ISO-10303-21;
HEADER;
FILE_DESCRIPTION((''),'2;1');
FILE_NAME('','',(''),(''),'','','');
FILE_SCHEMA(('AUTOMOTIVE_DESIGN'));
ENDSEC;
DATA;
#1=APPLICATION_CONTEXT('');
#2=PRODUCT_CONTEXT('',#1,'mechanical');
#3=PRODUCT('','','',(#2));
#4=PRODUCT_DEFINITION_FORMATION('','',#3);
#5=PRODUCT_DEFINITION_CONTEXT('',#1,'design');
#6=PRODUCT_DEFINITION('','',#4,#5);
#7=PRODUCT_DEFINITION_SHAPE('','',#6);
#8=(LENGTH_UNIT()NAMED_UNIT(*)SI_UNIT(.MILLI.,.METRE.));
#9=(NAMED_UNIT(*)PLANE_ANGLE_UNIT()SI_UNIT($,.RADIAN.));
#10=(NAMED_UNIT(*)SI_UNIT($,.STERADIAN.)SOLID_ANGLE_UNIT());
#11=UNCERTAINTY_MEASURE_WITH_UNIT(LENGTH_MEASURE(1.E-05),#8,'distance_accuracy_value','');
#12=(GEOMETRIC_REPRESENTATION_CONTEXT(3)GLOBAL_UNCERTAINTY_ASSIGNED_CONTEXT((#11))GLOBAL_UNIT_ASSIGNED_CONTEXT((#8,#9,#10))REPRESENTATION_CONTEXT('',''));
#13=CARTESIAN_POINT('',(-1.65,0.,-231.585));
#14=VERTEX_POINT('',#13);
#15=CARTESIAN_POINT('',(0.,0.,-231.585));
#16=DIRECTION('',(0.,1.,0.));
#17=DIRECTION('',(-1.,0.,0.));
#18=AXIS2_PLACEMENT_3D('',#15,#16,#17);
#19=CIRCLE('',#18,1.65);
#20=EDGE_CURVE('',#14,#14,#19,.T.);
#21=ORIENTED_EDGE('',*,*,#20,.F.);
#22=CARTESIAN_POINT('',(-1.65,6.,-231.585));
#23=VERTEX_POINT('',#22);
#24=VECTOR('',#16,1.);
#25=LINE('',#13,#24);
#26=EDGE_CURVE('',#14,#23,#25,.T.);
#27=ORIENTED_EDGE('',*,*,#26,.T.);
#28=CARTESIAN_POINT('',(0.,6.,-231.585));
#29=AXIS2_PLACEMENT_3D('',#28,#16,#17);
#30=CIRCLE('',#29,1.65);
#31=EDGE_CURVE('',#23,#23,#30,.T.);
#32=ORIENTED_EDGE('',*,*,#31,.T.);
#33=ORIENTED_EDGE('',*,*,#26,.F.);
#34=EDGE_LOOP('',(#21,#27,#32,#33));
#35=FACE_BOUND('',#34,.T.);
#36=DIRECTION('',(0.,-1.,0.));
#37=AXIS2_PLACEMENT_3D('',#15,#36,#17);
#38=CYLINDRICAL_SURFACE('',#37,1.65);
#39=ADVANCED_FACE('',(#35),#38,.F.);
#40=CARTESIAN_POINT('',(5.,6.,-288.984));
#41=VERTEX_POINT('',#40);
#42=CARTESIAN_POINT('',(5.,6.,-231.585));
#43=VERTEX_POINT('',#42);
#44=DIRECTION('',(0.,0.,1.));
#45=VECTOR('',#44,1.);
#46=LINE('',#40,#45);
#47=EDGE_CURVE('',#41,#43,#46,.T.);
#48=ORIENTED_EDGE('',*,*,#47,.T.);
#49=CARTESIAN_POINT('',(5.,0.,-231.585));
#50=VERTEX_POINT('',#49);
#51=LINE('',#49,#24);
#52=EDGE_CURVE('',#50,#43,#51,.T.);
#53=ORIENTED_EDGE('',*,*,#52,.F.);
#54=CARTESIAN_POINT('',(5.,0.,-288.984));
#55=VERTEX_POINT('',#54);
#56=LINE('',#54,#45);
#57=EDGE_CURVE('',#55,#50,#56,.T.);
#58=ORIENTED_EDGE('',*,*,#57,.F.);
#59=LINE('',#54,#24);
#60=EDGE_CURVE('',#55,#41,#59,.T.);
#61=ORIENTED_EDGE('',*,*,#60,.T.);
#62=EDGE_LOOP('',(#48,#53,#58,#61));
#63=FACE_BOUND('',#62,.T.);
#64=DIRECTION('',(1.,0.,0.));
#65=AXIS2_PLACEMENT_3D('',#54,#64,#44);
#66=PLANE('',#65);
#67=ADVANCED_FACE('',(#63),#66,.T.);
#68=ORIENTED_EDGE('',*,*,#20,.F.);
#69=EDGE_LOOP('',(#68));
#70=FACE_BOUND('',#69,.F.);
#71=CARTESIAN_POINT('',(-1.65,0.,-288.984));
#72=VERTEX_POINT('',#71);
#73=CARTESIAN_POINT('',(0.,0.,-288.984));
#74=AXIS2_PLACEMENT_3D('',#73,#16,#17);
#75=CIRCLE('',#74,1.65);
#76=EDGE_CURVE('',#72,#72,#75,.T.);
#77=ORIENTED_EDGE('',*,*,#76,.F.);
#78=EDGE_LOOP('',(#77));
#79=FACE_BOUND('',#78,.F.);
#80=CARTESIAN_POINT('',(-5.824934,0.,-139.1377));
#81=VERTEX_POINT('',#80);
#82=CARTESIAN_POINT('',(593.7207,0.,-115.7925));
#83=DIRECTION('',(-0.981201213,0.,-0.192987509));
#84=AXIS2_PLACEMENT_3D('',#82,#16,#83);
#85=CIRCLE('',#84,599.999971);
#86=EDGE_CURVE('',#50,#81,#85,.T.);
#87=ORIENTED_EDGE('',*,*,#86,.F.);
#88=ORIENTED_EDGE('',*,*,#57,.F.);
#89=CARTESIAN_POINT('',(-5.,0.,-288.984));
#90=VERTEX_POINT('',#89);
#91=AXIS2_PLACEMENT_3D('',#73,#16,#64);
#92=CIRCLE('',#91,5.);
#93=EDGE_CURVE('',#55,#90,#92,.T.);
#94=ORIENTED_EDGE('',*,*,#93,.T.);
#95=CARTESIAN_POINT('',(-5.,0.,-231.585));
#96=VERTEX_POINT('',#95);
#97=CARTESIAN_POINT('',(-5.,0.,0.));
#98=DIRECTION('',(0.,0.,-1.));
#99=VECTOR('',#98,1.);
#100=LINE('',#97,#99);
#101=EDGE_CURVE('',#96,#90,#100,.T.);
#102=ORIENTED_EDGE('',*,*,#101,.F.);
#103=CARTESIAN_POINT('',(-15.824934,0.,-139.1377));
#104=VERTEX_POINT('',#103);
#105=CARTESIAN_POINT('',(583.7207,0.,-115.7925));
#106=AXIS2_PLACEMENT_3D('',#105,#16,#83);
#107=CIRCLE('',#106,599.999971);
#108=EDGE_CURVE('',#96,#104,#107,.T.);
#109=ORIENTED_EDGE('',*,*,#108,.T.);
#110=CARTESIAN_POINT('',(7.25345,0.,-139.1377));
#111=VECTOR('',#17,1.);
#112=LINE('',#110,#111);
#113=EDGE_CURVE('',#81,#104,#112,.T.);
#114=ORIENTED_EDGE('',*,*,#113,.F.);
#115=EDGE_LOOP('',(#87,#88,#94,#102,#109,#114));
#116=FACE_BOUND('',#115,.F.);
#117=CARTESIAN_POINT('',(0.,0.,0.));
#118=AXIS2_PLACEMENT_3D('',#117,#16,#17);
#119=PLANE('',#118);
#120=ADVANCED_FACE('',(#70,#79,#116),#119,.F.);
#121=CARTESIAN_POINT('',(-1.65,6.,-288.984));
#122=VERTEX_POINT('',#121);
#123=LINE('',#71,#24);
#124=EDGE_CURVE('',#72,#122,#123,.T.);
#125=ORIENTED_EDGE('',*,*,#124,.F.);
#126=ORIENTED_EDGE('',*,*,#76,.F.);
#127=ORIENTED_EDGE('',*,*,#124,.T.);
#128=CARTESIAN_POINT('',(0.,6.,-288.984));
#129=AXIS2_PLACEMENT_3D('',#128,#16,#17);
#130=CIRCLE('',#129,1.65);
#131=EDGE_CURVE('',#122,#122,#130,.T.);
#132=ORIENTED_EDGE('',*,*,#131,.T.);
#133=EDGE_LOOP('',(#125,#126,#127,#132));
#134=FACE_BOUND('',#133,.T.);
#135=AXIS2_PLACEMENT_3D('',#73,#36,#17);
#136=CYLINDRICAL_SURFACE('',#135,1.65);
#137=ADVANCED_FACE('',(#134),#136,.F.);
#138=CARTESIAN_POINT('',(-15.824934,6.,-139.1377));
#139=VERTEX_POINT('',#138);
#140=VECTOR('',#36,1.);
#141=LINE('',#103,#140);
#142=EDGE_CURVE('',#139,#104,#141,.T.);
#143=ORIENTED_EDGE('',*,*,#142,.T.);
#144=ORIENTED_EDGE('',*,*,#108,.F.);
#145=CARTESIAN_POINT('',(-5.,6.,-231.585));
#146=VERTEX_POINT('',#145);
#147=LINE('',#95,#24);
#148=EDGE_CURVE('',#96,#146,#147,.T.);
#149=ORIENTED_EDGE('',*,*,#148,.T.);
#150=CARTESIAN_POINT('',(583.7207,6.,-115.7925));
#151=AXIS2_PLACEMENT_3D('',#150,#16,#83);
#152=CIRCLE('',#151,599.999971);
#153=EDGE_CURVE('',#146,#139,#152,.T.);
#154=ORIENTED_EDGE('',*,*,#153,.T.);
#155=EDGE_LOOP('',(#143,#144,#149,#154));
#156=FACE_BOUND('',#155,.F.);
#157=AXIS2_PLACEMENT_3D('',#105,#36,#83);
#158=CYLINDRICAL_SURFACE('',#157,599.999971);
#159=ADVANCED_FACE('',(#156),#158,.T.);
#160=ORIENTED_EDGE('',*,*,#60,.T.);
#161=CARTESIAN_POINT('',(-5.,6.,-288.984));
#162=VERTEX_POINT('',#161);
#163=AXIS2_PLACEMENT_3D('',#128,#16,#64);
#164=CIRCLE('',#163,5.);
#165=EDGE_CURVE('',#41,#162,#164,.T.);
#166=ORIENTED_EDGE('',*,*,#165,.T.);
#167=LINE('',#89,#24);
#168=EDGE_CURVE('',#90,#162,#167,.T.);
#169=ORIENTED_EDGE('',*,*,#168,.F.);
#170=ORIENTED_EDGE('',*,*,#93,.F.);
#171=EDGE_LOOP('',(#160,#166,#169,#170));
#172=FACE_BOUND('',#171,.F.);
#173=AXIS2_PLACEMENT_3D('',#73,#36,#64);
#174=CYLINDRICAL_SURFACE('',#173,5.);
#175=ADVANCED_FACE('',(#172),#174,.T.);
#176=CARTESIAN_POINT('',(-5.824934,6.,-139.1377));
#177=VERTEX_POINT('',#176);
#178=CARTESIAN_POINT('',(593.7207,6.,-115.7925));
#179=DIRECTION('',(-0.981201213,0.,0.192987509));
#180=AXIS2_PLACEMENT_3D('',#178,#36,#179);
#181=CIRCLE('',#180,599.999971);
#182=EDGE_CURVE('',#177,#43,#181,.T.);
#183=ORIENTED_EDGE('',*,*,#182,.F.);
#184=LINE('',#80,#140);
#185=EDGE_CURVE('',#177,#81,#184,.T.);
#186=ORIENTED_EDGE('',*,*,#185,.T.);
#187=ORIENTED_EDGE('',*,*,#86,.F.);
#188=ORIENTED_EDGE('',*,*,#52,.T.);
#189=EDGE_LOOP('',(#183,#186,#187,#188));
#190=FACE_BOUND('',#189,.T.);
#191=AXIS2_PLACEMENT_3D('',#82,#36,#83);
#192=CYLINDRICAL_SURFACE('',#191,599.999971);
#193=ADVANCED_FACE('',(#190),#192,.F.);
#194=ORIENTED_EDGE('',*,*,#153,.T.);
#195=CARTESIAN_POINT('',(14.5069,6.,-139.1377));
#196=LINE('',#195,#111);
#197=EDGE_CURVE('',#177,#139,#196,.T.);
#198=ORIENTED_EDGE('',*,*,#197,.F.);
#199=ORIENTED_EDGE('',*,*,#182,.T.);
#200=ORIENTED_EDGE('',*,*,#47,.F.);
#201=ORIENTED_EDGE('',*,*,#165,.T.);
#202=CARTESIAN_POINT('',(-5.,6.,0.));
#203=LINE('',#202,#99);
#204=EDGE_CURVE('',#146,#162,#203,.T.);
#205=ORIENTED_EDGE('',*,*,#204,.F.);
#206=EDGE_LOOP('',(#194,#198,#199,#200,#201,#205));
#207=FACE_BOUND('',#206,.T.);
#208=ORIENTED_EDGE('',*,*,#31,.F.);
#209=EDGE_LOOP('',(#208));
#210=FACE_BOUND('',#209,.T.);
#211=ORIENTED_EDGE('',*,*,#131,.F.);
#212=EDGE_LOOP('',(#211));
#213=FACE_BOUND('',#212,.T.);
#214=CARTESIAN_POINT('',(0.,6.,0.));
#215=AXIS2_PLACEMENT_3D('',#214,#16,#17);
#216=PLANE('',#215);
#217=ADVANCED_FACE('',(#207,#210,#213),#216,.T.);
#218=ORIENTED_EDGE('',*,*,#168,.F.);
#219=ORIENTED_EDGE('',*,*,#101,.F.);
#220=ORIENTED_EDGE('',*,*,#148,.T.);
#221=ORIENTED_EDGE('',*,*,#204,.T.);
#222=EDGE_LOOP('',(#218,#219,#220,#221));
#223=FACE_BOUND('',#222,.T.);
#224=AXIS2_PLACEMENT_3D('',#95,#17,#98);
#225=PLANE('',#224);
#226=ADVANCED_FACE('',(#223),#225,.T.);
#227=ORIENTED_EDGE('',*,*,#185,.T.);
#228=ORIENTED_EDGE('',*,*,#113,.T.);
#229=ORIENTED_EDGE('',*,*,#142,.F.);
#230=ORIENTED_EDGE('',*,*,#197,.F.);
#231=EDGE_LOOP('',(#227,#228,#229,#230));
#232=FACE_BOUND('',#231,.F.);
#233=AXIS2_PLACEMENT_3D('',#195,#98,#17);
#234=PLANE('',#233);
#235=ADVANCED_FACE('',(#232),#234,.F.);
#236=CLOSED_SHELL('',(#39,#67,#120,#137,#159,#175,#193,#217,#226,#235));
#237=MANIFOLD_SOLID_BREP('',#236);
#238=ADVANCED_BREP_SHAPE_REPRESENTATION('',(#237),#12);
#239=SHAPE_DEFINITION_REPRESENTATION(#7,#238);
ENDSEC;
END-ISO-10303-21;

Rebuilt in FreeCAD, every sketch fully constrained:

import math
import FreeCAD as App
import Part
import Sketcher
from FreeCAD import Vector
Q = App.Units.Quantity


def add_polygon(sketch, points):
    """Adds a closed chain of lines whose ends are joined by coincident constraints."""
    first, n = sketch.GeometryCount, len(points)
    for a, b in zip(points, points[1:] + points[:1]):
        sketch.addGeometry(Part.LineSegment(App.Vector(*a, 0), App.Vector(*b, 0)), False)
    for i in range(n):
        sketch.addConstraint(Sketcher.Constraint("Coincident", first + i, 2, first + (i + 1) % n, 1))

doc = App.newDocument("Part")
body = doc.addObject("PartDesign::Body", "Body")

# Sketch on XZ plane
sketch1 = doc.addObject("Sketcher::SketchObject", "Sketch")
body.addObject(sketch1)
sketch1.AttachmentSupport = (doc.XZ_Plane, [""])
sketch1.MapMode = "FlatFace"
sketch1.addGeometry([
    Part.LineSegment(Vector(-5, -289, 0), Vector(-5, -231.6, 0)),  # 0
    Part.ArcOfCircle(Part.Circle(Vector(583.7, -115.8, 0), Vector(0, 0, 1), 600), math.radians(169), math.radians(191)),  # 1
    Part.ArcOfCircle(Part.Circle(Vector(0, 0, 0), Vector(0, 0, 1), 5), math.radians(0), math.radians(180)),  # 2
    Part.ArcOfCircle(Part.Circle(Vector(593.7, -115.8, 0), Vector(0, 0, 1), 600), math.radians(169), math.radians(191)),  # 3
    Part.LineSegment(Vector(5, -231.6, 0), Vector(5, -289, 0)),  # 4
    Part.ArcOfCircle(Part.Circle(Vector(0, -289, 0), Vector(0, 0, 1), 5), math.radians(180), math.radians(360)),  # 5
    Part.Circle(Vector(0, -289, 0), Vector(0, 0, 1), 1.6),  # 6
    Part.Circle(Vector(0, -231.6, 0), Vector(0, 0, 1), 1.6),  # 7
    Part.Circle(Vector(0, 0, 0), Vector(0, 0, 1), 1.6),  # 8
], False)
sketch1.addConstraint([
    Sketcher.Constraint("Coincident", 0, 2, 1, 2),
    Sketcher.Constraint("Coincident", 1, 1, 2, 2),
    Sketcher.Constraint("Coincident", 2, 1, 3, 1),
    Sketcher.Constraint("Coincident", 3, 2, 4, 1),
    Sketcher.Constraint("Tangent", 4, 2, 5, 2),
    Sketcher.Constraint("Tangent", 5, 1, 0, 1),
    Sketcher.Constraint("Vertical", 0),
    Sketcher.Constraint("Vertical", 4),
    Sketcher.Constraint("Coincident", 2, 3, -1, 1),
    Sketcher.Constraint("Coincident", 8, 3, -1, 1),
    Sketcher.Constraint("Coincident", 6, 3, 5, 3),
    Sketcher.Constraint("Equal", 1, 3),
    Sketcher.Constraint("Equal", 2, 5),
    Sketcher.Constraint("Equal", 6, 7),
    Sketcher.Constraint("Equal", 7, 8),
    Sketcher.Constraint("Symmetric", 0, 2, 3, 2, -2),
    Sketcher.Constraint("PointOnObject", 7, 3, -2),
    Sketcher.Constraint("PointOnObject", 1, 1, -1),
    Sketcher.Constraint("PointOnObject", 2, 1, -1),
    Sketcher.Constraint("Horizontal", 7, 3, 0, 2),
    Sketcher.Constraint("Radius", 1, Q("600 mm")),
    Sketcher.Constraint("Radius", 2, Q("5 mm")),
    Sketcher.Constraint("Diameter", 6, Q("3.3 mm")),
    Sketcher.Constraint("DistanceY", 5, 3, -1, 1, Q("288.984 mm")),
    Sketcher.Constraint("DistanceY", 7, 3, -1, 1, Q("231.585 mm")),
])
pad1 = doc.addObject("PartDesign::Pad", "Pad")
body.addObject(pad1)
pad1.Profile = sketch1
pad1.Length = 6
pad1.Reversed = True

# Sketch on XZ plane
sketch2 = doc.addObject("Sketcher::SketchObject", "Sketch001")
body.addObject(sketch2)
sketch2.AttachmentSupport = (doc.XZ_Plane, [""])
sketch2.MapMode = "FlatFace"
sketch2.AttachmentOffset = App.Placement(Vector(0, 0, -6), App.Rotation())
add_polygon(sketch2, [(55, -321), (-101, -321), (-101, 14), (55, 14)])  # lines 0-3
add_polygon(sketch2, [(-28, -139), (-28, -299), (15, -299), (15, -139)])  # lines 4-7
sketch2.addConstraint([
    Sketcher.Constraint("Horizontal", 0),
    Sketcher.Constraint("Vertical", 1),
    Sketcher.Constraint("Horizontal", 2),
    Sketcher.Constraint("Vertical", 3),
    Sketcher.Constraint("Vertical", 4),
    Sketcher.Constraint("Horizontal", 5),
    Sketcher.Constraint("Vertical", 6),
    Sketcher.Constraint("Horizontal", 7),
    Sketcher.Constraint("DistanceX", 0, 2, 0, 1, Q("155.5394 mm")),
    Sketcher.Constraint("DistanceX", 5, 1, 5, 2, Q("42.2178 mm")),
    Sketcher.Constraint("DistanceY", 1, 1, 1, 2, Q("335.2032 mm")),
    Sketcher.Constraint("DistanceY", 4, 2, 4, 1, Q("160.3008 mm")),
    Sketcher.Constraint("DistanceX", 4, 2, -1, 1, Q("27.711 mm")),
    Sketcher.Constraint("DistanceY", 0, 2, 4, 2, Q("21.585 mm")),
    Sketcher.Constraint("DistanceX", 5, 2, 3, 2, Q("39.996 mm")),
    Sketcher.Constraint("DistanceY", 0, 2, -1, 1, Q("321.0236 mm")),
])
pocket1 = doc.addObject("PartDesign::Pocket", "Pocket")
body.addObject(pocket1)
pocket1.Profile = sketch2
pocket1.Length = 10
pocket1.Reversed = True

doc.recompute()
